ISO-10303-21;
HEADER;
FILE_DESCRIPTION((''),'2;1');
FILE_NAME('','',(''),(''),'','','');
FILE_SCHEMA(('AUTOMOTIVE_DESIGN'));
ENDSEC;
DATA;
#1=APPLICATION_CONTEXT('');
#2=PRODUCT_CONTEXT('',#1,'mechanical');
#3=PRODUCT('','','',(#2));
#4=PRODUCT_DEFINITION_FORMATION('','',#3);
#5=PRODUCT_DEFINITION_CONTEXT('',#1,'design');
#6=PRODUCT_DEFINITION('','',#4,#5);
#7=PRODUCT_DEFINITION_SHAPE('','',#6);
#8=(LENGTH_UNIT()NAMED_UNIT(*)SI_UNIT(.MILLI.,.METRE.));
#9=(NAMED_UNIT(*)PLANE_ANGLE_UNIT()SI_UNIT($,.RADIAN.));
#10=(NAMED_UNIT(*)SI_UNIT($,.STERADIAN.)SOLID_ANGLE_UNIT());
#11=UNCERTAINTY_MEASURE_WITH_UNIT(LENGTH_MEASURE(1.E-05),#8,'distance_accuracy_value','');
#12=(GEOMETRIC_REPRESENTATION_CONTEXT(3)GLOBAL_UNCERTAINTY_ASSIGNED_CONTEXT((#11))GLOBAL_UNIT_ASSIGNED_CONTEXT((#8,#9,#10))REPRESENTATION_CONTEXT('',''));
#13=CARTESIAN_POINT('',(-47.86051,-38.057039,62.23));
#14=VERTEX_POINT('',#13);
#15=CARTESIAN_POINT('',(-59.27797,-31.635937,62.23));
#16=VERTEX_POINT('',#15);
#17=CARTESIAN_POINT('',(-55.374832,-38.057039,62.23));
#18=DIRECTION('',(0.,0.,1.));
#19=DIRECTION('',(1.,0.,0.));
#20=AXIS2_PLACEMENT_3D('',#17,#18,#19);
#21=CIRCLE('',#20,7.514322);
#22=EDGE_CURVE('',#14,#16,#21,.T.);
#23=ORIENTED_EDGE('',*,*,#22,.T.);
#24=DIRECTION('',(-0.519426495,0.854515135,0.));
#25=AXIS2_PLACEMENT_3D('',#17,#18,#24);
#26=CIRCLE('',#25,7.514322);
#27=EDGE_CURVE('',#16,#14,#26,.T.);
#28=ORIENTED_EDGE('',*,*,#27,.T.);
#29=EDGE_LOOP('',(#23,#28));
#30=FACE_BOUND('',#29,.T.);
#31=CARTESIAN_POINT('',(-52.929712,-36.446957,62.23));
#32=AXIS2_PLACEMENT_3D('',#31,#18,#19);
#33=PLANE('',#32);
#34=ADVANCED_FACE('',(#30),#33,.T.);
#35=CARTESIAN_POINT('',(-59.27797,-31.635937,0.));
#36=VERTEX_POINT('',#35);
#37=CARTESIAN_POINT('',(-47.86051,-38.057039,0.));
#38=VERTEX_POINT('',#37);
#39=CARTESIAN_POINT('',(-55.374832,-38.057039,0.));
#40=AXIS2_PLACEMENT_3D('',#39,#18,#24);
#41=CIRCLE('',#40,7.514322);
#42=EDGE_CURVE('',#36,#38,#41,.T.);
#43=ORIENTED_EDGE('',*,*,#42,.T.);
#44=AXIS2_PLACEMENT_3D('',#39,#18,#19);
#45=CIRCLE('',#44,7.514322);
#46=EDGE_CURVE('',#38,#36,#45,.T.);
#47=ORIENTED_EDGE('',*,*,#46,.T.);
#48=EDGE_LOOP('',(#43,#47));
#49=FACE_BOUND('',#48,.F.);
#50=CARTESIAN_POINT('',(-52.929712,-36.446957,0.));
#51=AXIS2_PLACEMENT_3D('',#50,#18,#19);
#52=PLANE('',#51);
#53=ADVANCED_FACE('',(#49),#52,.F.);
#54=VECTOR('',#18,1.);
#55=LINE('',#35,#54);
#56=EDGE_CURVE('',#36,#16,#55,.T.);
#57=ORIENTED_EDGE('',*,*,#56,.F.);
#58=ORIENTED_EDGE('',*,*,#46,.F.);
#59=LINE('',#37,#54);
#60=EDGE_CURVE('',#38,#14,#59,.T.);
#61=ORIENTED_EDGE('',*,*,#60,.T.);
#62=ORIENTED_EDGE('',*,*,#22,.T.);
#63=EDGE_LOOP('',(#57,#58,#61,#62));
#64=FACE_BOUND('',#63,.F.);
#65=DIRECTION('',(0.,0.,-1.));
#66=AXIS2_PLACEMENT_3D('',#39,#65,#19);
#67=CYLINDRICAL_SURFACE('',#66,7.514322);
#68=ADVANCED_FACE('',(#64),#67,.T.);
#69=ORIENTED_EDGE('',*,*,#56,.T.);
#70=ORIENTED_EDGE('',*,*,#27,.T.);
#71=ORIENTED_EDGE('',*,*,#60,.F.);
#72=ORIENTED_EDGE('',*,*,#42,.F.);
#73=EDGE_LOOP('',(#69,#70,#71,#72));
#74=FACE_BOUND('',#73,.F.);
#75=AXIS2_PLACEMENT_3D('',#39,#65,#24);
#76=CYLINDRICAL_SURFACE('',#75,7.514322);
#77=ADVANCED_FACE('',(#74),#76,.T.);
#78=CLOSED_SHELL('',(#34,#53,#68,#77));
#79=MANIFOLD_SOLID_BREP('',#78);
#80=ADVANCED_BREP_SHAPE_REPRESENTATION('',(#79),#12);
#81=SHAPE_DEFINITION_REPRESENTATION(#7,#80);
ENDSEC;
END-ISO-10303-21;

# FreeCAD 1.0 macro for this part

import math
import FreeCAD as App
import Part
import Sketcher
from FreeCAD import Vector
Q = App.Units.Quantity

doc = App.newDocument("Part")
body = doc.addObject("PartDesign::Body", "Body")

# Sketch on XY plane
sketch1 = body.newObject("Sketcher::SketchObject", "Sketch")
sketch1.AttachmentSupport = (doc.getObject("XY_Plane"), [""])
sketch1.MapMode = "FlatFace"
sketch1.addGeometry(Part.ArcOfCircle(Part.Circle(Vector(-55.374832, -38.057039, 0), Vector(0, 0, 1), 7.514322), math.radians(0), math.radians(121.29379)), False)
sketch1.addGeometry(Part.ArcOfCircle(Part.Circle(Vector(-55.374832, -38.057039, 0), Vector(0, 0, 1), 7.514322), math.radians(121.29379), math.radians(360)), False)
sketch1.addConstraint(Sketcher.Constraint("Tangent", 0, 1, 1, 2))
sketch1.addConstraint(Sketcher.Constraint("Coincident", 1, 1, 0, 2))
sketch1.addConstraint(Sketcher.Constraint("Horizontal", 1, 3, 0, 1))
sketch1.addConstraint(Sketcher.Constraint("Radius", 0, 7.514322))
sketch1.addConstraint(Sketcher.Constraint("DistanceY", 0, 3, -1, 1, 38.057039))
sketch1.addConstraint(Sketcher.Constraint("DistanceX", 0, 1, -1, 1, 47.86051))
sketch1.addConstraint(Sketcher.Constraint("DistanceX", 1, 1, -1, 1, 59.27797))
pad1 = body.newObject("PartDesign::Pad", "Pad")
pad1.Profile = sketch1
pad1.Length = Q("2.45 in")

doc.recompute()
